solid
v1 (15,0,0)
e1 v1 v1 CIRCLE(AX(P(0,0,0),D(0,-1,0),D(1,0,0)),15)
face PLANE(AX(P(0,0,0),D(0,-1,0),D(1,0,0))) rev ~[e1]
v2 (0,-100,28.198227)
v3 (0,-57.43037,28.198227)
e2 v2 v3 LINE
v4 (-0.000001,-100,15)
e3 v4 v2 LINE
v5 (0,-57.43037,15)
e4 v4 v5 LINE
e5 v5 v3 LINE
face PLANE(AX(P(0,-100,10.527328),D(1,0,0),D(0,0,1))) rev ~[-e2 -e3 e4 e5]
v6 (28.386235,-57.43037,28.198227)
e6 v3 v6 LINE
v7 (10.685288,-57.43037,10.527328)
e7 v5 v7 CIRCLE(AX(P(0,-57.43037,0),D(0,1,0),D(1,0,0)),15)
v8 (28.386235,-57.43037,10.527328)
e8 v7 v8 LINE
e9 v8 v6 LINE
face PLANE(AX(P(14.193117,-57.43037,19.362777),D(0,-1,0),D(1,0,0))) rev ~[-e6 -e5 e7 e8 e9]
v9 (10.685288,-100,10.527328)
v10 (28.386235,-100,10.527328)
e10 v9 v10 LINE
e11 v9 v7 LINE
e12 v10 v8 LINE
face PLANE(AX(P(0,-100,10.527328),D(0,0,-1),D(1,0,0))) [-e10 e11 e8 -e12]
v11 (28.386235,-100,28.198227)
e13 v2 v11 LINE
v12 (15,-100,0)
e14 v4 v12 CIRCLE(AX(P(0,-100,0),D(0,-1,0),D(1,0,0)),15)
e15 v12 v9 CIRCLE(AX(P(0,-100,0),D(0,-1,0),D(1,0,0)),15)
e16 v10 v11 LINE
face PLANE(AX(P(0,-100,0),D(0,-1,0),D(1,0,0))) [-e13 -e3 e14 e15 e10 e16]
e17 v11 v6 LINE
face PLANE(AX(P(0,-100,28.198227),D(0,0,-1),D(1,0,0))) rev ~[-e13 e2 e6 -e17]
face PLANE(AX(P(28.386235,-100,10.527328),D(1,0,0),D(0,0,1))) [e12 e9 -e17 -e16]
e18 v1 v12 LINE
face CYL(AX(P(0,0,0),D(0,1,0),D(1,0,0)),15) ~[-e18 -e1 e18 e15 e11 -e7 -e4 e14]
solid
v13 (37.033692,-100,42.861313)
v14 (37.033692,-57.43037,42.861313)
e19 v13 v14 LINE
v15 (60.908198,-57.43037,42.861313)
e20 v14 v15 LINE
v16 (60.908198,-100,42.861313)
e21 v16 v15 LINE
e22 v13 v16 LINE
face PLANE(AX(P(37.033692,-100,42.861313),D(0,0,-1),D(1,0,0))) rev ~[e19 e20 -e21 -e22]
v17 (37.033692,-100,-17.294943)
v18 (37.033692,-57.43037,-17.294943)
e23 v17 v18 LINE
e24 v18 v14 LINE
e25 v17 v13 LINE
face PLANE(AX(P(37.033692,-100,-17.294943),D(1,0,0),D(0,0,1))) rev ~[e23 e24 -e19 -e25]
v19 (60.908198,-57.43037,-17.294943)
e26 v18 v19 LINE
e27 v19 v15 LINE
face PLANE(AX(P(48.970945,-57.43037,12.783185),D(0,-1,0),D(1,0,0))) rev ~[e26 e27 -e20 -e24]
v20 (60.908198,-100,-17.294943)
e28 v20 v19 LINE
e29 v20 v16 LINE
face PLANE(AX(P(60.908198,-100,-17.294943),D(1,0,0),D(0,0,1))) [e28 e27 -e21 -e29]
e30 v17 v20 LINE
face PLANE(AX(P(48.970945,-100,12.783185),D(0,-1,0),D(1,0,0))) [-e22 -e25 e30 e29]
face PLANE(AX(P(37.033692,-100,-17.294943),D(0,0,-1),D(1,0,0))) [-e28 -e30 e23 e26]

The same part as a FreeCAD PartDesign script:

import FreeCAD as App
import Part
import Sketcher
from FreeCAD import Vector


def add_polygon(sketch, points):
    """Adds a closed chain of lines whose ends are joined by coincident constraints."""
    first, n = sketch.GeometryCount, len(points)
    for a, b in zip(points, points[1:] + points[:1]):
        sketch.addGeometry(Part.LineSegment(App.Vector(*a, 0), App.Vector(*b, 0)), False)
    for i in range(n):
        sketch.addConstraint(Sketcher.Constraint("Coincident", first + i, 2, first + (i + 1) % n, 1))

doc = App.newDocument("Part")
body = doc.addObject("PartDesign::Body", "Body")
body.AllowCompound = True

# Sketch on XZ plane
sketch1 = body.newObject("Sketcher::SketchObject", "Sketch")
sketch1.AttachmentSupport = (doc.getObject("XZ_Plane"), [""])
sketch1.MapMode = "FlatFace"
sketch1.addGeometry(Part.Circle(Vector(0, 0, 0), Vector(0, 0, 1), 15), False)
sketch1.addConstraint([
    Sketcher.Constraint("Coincident", 0, 3, -1, 1),
    Sketcher.Constraint("Diameter", 0, 30.0),
])
pad1 = body.newObject("PartDesign::Pad", "Pad")
pad1.Profile = sketch1
pad1.Length = 100

# Sketch on XZ plane
sketch2 = body.newObject("Sketcher::SketchObject", "Sketch001")
sketch2.AttachmentSupport = (doc.getObject("XZ_Plane"), [""])
sketch2.MapMode = "FlatFace"
sketch2.AttachmentOffset = App.Placement(Vector(0, 0, 100), App.Rotation())
add_polygon(sketch2, [(0, 28), (0, 11), (28, 11), (28, 28)])  # lines 0-3
add_polygon(sketch2, [(37, 43), (37, -17), (61, -17), (61, 43)])  # lines 4-7
sketch2.addConstraint([
    Sketcher.Constraint("Vertical", 0),
    Sketcher.Constraint("Horizontal", 1),
    Sketcher.Constraint("Vertical", 2),
    Sketcher.Constraint("Horizontal", 3),
    Sketcher.Constraint("Vertical", 4),
    Sketcher.Constraint("Horizontal", 5),
    Sketcher.Constraint("Vertical", 6),
    Sketcher.Constraint("Horizontal", 7),
    Sketcher.Constraint("PointOnObject", 0, 2, -2),
    Sketcher.Constraint("DistanceY", 0, 2, 0, 1, 17.670899),
    Sketcher.Constraint("DistanceX", 0, 2, 5, 2, 60.908198),
    Sketcher.Constraint("DistanceX", 1, 1, 1, 2, 28.386235),
    Sketcher.Constraint("DistanceX", 5, 1, 5, 2, 23.874506),
    Sketcher.Constraint("DistanceY", 4, 2, 4, 1, 60.156256),
    Sketcher.Constraint("DistanceY", 4, 2, 1, 2, 27.822271),
    Sketcher.Constraint("DistanceY", -1, 1, 0, 2, 10.527328),
])
pad2 = body.newObject("PartDesign::Pad", "Pad001")
pad2.Profile = sketch2
pad2.Length = 42.56963
pad2.Reversed = True

doc.recompute()
